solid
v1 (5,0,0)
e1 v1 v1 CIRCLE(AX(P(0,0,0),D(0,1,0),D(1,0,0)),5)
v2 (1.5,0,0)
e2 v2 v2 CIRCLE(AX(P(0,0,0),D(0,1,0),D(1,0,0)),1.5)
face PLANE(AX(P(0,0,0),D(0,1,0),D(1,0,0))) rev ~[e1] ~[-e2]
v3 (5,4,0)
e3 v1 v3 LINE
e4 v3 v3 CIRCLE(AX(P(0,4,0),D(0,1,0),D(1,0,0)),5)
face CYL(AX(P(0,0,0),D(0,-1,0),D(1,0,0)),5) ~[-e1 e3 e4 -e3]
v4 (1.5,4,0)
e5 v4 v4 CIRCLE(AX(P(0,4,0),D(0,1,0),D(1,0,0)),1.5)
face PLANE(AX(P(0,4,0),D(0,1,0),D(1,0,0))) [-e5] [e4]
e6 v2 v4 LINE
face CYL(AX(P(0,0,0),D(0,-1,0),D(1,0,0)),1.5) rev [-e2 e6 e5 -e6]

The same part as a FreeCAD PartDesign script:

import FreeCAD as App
import Part
import Sketcher
from FreeCAD import Vector
Q = App.Units.Quantity

doc = App.newDocument("Part")
body = doc.addObject("PartDesign::Body", "Body")

# Sketch on XZ plane
sketch1 = body.newObject("Sketcher::SketchObject", "Sketch")
sketch1.AttachmentSupport = (doc.getObject("XZ_Plane"), [""])
sketch1.MapMode = "FlatFace"
sketch1.addGeometry(Part.Circle(Vector(0, 0, 0), Vector(0, 0, 1), 5), False)
sketch1.addGeometry(Part.Circle(Vector(0, 0, 0), Vector(0, 0, 1), 1.5), False)
sketch1.addConstraint(Sketcher.Constraint("Coincident", 0, 3, -1, 1))
sketch1.addConstraint(Sketcher.Constraint("Coincident", 1, 3, -1, 1))
sketch1.addConstraint(Sketcher.Constraint("Diameter", 0, Q("10 mm")))
sketch1.addConstraint(Sketcher.Constraint("Diameter", 1, Q("3 mm")))
pad1 = body.newObject("PartDesign::Pad", "Pad")
pad1.Profile = sketch1
pad1.Length = 4
pad1.Reversed = True

doc.recompute()
